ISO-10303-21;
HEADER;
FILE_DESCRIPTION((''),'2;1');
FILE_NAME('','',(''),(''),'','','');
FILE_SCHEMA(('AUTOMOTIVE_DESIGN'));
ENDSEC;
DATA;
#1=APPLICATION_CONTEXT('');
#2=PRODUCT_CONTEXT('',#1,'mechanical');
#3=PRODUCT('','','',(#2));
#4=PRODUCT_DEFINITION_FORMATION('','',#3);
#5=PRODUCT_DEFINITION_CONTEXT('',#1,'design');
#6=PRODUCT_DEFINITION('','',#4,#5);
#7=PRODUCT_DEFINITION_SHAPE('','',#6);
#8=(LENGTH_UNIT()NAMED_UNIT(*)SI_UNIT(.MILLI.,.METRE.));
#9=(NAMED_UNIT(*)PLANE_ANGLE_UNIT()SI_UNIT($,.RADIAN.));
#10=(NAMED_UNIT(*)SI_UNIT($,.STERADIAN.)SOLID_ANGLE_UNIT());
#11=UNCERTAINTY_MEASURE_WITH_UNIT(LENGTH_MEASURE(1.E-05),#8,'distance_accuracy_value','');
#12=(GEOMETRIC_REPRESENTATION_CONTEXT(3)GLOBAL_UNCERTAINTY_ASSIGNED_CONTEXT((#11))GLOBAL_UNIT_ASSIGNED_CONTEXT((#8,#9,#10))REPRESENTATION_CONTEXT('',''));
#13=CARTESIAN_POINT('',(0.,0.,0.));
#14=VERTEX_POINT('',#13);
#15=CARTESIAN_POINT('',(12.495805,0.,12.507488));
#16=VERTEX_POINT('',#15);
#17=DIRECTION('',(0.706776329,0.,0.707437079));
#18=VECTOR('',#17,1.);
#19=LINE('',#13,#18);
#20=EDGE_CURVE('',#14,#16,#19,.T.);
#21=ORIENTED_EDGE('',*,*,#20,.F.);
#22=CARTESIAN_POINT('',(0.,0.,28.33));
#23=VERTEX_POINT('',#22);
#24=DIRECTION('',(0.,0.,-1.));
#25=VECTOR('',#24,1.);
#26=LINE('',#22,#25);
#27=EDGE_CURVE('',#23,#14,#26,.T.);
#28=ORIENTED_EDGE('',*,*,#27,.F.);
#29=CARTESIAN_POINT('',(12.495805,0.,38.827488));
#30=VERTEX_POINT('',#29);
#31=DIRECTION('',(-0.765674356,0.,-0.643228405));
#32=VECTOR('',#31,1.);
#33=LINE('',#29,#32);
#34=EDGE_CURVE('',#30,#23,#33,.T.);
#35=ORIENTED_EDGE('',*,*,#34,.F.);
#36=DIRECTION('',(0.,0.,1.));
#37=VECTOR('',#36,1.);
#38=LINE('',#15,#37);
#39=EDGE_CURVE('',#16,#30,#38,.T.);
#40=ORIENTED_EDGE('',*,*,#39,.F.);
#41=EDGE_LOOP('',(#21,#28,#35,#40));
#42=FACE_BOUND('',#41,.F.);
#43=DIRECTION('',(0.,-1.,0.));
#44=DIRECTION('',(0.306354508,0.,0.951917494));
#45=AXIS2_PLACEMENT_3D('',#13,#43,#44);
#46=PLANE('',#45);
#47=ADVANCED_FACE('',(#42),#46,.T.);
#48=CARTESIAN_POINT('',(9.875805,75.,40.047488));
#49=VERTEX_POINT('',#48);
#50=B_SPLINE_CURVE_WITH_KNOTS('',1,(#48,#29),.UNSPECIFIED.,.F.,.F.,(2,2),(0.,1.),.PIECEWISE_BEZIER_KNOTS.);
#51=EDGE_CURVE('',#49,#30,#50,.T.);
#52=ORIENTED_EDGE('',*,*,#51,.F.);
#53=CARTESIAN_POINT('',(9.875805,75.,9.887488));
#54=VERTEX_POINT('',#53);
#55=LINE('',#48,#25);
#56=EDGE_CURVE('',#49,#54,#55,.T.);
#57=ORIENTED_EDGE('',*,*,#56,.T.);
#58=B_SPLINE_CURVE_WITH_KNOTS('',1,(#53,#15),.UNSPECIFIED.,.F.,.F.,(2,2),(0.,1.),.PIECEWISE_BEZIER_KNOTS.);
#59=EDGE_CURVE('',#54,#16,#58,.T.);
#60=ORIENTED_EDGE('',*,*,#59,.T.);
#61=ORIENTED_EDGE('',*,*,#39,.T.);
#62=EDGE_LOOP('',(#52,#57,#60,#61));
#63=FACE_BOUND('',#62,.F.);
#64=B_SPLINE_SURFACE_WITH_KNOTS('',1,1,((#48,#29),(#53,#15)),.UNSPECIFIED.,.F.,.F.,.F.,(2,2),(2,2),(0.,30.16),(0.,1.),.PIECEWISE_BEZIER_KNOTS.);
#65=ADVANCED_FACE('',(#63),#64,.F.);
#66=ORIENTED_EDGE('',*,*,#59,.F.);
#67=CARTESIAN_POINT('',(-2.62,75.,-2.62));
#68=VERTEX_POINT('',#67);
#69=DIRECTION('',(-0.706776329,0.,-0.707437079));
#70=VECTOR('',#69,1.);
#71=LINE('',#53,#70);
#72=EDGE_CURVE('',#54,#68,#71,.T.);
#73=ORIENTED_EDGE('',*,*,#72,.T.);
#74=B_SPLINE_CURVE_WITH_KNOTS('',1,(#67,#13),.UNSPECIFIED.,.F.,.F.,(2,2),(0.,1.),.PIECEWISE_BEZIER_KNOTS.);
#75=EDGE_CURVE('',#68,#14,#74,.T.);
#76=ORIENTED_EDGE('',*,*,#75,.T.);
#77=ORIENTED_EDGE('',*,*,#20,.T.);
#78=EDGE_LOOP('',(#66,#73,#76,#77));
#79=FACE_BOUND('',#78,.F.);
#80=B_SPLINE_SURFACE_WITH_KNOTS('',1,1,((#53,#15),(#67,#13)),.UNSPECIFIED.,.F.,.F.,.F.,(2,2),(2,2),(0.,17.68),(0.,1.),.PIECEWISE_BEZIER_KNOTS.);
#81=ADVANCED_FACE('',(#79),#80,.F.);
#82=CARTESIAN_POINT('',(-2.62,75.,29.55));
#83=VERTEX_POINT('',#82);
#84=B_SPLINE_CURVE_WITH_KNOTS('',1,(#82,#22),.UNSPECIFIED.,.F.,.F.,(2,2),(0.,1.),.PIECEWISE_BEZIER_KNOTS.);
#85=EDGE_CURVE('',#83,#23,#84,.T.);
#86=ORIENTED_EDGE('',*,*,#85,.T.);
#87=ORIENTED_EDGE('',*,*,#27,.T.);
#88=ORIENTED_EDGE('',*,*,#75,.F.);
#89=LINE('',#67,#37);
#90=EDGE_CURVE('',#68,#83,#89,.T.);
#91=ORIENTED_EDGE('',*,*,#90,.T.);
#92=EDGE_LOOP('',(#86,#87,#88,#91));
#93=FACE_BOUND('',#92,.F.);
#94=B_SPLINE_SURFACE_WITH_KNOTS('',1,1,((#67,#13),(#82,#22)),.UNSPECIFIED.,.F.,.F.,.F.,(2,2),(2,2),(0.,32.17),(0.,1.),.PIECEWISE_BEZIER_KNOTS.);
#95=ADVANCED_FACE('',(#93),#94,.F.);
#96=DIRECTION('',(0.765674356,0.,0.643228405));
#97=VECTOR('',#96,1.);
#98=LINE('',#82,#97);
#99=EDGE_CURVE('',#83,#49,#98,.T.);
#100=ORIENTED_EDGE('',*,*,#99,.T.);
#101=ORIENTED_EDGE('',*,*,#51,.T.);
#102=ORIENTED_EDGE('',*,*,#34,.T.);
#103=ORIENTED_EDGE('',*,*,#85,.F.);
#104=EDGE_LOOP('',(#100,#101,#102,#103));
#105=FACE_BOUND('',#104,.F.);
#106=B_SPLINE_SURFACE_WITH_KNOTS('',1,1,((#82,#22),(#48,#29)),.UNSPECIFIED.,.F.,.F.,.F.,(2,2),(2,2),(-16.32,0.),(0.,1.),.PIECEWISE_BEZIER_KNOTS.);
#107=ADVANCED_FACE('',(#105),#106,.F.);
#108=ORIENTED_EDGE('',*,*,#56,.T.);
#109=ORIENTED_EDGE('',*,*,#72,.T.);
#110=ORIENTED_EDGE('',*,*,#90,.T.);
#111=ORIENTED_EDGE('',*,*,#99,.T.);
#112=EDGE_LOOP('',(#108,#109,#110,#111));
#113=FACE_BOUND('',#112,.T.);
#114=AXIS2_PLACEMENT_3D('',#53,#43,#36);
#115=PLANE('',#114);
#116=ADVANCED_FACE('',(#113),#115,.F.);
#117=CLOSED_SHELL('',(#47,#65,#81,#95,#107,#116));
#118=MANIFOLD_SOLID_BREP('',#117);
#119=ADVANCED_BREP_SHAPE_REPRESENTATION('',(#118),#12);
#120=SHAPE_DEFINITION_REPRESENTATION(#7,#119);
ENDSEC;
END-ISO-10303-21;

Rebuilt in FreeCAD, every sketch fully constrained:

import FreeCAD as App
import Part
import Sketcher
from FreeCAD import Vector
Q = App.Units.Quantity

doc = App.newDocument("Part")
body = doc.addObject("PartDesign::Body", "Body")

sketch1 = body.newObject("Sketcher::SketchObject", "Sketch")
sketch1.AttachmentSupport = (doc.getObject("XZ_Plane"), [""])
sketch1.MapMode = "FlatFace"
sketch1.AttachmentOffset = App.Placement(Vector(0, 0, -75), App.Rotation())
sketch1.addGeometry(Part.LineSegment(Vector(10, 10, 0), Vector(-3, -3, 0)), False)
sketch1.addGeometry(Part.LineSegment(Vector(-3, -3, 0), Vector(-3, 30, 0)), False)
sketch1.addGeometry(Part.LineSegment(Vector(-3, 30, 0), Vector(10, 40, 0)), False)
sketch1.addGeometry(Part.LineSegment(Vector(10, 40, 0), Vector(10, 10, 0)), False)
sketch1.addConstraint(Sketcher.Constraint("Coincident", 0, 2, 1, 1))
sketch1.addConstraint(Sketcher.Constraint("Coincident", 1, 2, 2, 1))
sketch1.addConstraint(Sketcher.Constraint("Coincident", 2, 2, 3, 1))
sketch1.addConstraint(Sketcher.Constraint("Coincident", 3, 2, 0, 1))
sketch1.addConstraint(Sketcher.Constraint("Vertical", 1))
sketch1.addConstraint(Sketcher.Constraint("Vertical", 3))
sketch1.addConstraint(Sketcher.Constraint("DistanceY", 1, 1, 1, 2, Q("32.17 mm")))
sketch1.addConstraint(Sketcher.Constraint("DistanceY", 3, 2, 3, 1, Q("30.16 mm")))
sketch1.addConstraint(Sketcher.Constraint("Distance", 0, Q("17.68 mm")))
sketch1.addConstraint(Sketcher.Constraint("Distance", 2, Q("16.32 mm")))
sketch1.addConstraint(Sketcher.Constraint("DistanceX", 0, 2, -1, 1, Q("2.62 mm")))
sketch1.addConstraint(Sketcher.Constraint("DistanceY", 0, 2, -1, 1, Q("2.62 mm")))

sketch2 = body.newObject("Sketcher::SketchObject", "Sketch001")
sketch2.AttachmentSupport = (doc.getObject("XZ_Plane"), [""])
sketch2.MapMode = "FlatFace"
sketch2.addGeometry(Part.LineSegment(Vector(0, 28, 0), Vector(12, 39, 0)), False)
sketch2.addGeometry(Part.LineSegment(Vector(12, 39, 0), Vector(12, 13, 0)), False)
sketch2.addGeometry(Part.LineSegment(Vector(12, 13, 0), Vector(0, 0, 0)), False)
sketch2.addGeometry(Part.LineSegment(Vector(0, 0, 0), Vector(0, 28, 0)), False)
sketch2.addConstraint(Sketcher.Constraint("Coincident", 0, 2, 1, 1))
sketch2.addConstraint(Sketcher.Constraint("Coincident", 1, 2, 2, 1))
sketch2.addConstraint(Sketcher.Constraint("Coincident", 2, 2, 3, 1))
sketch2.addConstraint(Sketcher.Constraint("Coincident", 3, 2, 0, 1))
sketch2.addConstraint(Sketcher.Constraint("Vertical", 1))
sketch2.addConstraint(Sketcher.Constraint("Vertical", 3))
sketch2.addConstraint(Sketcher.Constraint("Coincident", 2, 2, -1, 1))
sketch2.addConstraint(Sketcher.Constraint("DistanceY", 1, 2, 1, 1, Q("26.32 mm")))
sketch2.addConstraint(Sketcher.Constraint("DistanceY", 3, 1, 3, 2, Q("28.33 mm")))
sketch2.addConstraint(Sketcher.Constraint("Distance", 0, Q("16.32 mm")))
sketch2.addConstraint(Sketcher.Constraint("Distance", 2, Q("17.68 mm")))

additiveloft = body.newObject("PartDesign::AdditiveLoft", "AdditiveLoft")
additiveloft.Profile = sketch1
additiveloft.Sections = [sketch2]

doc.recompute()
